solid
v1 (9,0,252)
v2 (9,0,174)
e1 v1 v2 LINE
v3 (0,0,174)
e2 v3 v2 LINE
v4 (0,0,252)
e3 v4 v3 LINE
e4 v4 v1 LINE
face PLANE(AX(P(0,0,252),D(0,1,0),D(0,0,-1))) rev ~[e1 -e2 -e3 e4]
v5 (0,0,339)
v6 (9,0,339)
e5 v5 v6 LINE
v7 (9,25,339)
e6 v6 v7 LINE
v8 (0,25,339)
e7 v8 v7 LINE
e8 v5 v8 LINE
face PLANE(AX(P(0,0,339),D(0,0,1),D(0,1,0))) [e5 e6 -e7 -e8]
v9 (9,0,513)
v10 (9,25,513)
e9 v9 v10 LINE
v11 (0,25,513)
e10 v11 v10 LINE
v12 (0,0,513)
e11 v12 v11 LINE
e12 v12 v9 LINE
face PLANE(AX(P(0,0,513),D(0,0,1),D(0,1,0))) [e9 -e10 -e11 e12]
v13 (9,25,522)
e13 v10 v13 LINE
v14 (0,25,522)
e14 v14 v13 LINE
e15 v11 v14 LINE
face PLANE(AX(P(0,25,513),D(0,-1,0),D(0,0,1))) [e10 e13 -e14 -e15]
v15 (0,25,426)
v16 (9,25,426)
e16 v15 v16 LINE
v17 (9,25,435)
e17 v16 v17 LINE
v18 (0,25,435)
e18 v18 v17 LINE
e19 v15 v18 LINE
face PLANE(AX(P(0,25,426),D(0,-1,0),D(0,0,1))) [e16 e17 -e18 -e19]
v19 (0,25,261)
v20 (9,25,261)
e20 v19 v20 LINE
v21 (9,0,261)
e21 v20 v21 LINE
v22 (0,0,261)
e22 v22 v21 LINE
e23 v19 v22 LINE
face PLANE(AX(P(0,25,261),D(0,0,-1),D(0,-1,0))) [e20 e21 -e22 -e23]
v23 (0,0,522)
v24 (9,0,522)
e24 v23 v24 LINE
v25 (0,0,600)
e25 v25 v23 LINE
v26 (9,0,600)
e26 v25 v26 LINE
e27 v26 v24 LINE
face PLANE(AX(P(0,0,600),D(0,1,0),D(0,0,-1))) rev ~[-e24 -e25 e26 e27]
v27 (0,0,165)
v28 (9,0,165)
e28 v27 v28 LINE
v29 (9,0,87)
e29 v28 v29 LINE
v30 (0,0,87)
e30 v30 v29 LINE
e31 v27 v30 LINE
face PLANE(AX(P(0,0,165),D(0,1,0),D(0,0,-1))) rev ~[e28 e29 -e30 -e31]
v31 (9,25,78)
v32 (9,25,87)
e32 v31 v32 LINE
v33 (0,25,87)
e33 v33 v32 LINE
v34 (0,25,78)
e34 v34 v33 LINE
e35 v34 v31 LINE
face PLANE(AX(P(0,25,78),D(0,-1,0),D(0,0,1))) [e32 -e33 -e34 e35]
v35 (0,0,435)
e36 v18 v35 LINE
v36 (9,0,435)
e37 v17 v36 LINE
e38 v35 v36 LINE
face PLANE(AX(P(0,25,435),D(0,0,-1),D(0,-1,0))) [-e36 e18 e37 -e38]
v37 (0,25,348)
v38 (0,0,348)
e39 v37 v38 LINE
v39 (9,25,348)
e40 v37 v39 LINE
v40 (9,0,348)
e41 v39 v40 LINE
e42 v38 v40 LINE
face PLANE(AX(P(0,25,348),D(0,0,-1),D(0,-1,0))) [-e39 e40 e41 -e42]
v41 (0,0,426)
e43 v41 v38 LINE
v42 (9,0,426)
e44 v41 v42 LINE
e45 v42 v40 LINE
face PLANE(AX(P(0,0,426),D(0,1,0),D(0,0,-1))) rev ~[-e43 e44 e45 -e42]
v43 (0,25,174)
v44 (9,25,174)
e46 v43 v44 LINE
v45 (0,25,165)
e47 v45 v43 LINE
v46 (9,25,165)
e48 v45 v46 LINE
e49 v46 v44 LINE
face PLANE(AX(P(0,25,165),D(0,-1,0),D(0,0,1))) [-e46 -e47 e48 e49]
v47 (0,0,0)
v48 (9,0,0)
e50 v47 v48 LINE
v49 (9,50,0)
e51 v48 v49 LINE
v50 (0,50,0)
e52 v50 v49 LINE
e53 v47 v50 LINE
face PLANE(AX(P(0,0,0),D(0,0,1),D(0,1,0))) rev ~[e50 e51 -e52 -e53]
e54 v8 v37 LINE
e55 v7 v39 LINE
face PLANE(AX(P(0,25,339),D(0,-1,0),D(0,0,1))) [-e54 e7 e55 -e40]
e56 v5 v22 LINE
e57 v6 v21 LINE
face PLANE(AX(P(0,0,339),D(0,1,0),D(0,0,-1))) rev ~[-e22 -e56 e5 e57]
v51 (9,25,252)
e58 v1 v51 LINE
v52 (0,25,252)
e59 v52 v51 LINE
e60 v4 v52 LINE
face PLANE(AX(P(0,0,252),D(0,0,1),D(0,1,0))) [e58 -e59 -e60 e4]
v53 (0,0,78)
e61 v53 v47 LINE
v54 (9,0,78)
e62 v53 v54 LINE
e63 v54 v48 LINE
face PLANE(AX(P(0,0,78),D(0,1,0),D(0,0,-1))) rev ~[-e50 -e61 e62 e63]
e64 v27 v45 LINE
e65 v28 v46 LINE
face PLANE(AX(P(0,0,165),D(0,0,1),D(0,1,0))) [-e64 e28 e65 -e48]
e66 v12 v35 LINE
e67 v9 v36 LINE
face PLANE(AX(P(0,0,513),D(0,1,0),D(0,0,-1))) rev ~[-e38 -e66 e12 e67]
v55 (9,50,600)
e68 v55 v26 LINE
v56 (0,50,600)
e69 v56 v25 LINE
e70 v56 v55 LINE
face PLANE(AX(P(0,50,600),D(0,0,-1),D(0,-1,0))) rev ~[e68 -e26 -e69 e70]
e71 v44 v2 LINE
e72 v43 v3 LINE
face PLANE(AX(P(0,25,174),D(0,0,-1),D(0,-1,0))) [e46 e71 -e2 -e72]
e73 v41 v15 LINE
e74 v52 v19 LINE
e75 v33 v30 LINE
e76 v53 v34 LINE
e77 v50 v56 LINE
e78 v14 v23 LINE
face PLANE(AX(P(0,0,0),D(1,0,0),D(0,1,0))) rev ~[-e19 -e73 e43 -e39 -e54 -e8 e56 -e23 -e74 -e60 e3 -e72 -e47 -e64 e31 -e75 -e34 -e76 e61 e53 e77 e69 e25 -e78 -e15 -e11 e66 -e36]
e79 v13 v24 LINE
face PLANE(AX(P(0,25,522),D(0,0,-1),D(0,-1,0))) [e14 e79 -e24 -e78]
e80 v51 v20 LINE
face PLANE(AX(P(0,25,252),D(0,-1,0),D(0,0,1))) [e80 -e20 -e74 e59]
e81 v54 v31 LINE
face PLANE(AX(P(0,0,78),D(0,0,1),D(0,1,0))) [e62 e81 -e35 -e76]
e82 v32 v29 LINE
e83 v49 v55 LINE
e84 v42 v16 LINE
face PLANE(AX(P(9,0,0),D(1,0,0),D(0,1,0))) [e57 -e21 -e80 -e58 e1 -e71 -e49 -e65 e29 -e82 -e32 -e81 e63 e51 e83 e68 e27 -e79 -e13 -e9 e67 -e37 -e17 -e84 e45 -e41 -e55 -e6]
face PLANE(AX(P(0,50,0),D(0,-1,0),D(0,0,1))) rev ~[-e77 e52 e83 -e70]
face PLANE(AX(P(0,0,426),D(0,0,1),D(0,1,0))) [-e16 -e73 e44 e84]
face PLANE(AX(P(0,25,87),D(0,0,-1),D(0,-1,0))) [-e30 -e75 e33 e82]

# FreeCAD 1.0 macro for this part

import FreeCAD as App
import Part
import Sketcher
from FreeCAD import Vector
Q = App.Units.Quantity


def add_polygon(sketch, points):
    """Adds a closed chain of lines whose ends are joined by coincident constraints."""
    first, n = sketch.GeometryCount, len(points)
    for a, b in zip(points, points[1:] + points[:1]):
        sketch.addGeometry(Part.LineSegment(App.Vector(*a, 0), App.Vector(*b, 0)), False)
    for i in range(n):
        sketch.addConstraint(Sketcher.Constraint("Coincident", first + i, 2, first + (i + 1) % n, 1))

doc = App.newDocument("Part")
body = doc.addObject("PartDesign::Body", "Body")

sketch1 = doc.addObject("Sketcher::SketchObject", "Sketch")
body.addObject(sketch1)
sketch1.AttachmentSupport = (doc.YZ_Plane, [""])
sketch1.MapMode = "FlatFace"
add_polygon(sketch1, [(0, 78), (0, 0), (50, 0), (50, 600), (0, 600), (0, 522), (25, 522), (25, 513), (0, 513), (0, 435), (25, 435), (25, 426), (0, 426), (0, 348), (25, 348), (25, 339), (0, 339), (0, 261), (25, 261), (25, 252), (0, 252), (0, 174), (25, 174), (25, 165), (0, 165), (0, 87), (25, 87), (25, 78)])
sketch1.addConstraint([
    Sketcher.Constraint("Vertical", 0),
    Sketcher.Constraint("Horizontal", 1),
    Sketcher.Constraint("Vertical", 2),
    Sketcher.Constraint("Horizontal", 3),
    Sketcher.Constraint("Vertical", 4),
    Sketcher.Constraint("Horizontal", 5),
    Sketcher.Constraint("Vertical", 6),
    Sketcher.Constraint("Horizontal", 7),
    Sketcher.Constraint("Vertical", 8),
    Sketcher.Constraint("Horizontal", 9),
    Sketcher.Constraint("Vertical", 10),
    Sketcher.Constraint("Horizontal", 11),
    Sketcher.Constraint("Vertical", 12),
    Sketcher.Constraint("Horizontal", 13),
    Sketcher.Constraint("Vertical", 14),
    Sketcher.Constraint("Horizontal", 15),
    Sketcher.Constraint("Vertical", 16),
    Sketcher.Constraint("Horizontal", 17),
    Sketcher.Constraint("Vertical", 18),
    Sketcher.Constraint("Horizontal", 19),
    Sketcher.Constraint("Vertical", 20),
    Sketcher.Constraint("Horizontal", 21),
    Sketcher.Constraint("Vertical", 22),
    Sketcher.Constraint("Horizontal", 23),
    Sketcher.Constraint("Vertical", 24),
    Sketcher.Constraint("Horizontal", 25),
    Sketcher.Constraint("Vertical", 26),
    Sketcher.Constraint("Horizontal", 27),
    Sketcher.Constraint("Coincident", 0, 2, -1, 1),
    Sketcher.Constraint("PointOnObject", 3, 2, -2),
    Sketcher.Constraint("PointOnObject", 7, 2, -2),
    Sketcher.Constraint("PointOnObject", 11, 2, -2),
    Sketcher.Constraint("PointOnObject", 15, 2, -2),
    Sketcher.Constraint("PointOnObject", 19, 2, -2),
    Sketcher.Constraint("PointOnObject", 23, 2, -2),
    Sketcher.Constraint("Vertical", 6, 2, 9, 2),
    Sketcher.Constraint("Vertical", 10, 2, 13, 2),
    Sketcher.Constraint("Vertical", 14, 2, 17, 2),
    Sketcher.Constraint("Vertical", 18, 2, 21, 2),
    Sketcher.Constraint("Vertical", 22, 2, 25, 2),
    Sketcher.Constraint("Equal", 0, 4),
    Sketcher.Constraint("Equal", 4, 8),
    Sketcher.Constraint("Equal", 6, 10),
    Sketcher.Constraint("Equal", 8, 12),
    Sketcher.Constraint("Equal", 10, 14),
    Sketcher.Constraint("Equal", 12, 16),
    Sketcher.Constraint("Equal", 14, 18),
    Sketcher.Constraint("Equal", 16, 20),
    Sketcher.Constraint("Equal", 18, 22),
    Sketcher.Constraint("Equal", 20, 24),
    Sketcher.Constraint("Equal", 22, 26),
    Sketcher.Constraint("DistanceX", 1, 1, 1, 2, Q("50 mm")),
    Sketcher.Constraint("DistanceX", 5, 1, 5, 2, Q("25 mm")),
    Sketcher.Constraint("DistanceY", 0, 2, 0, 1, Q("78 mm")),
    Sketcher.Constraint("DistanceY", 2, 1, 2, 2, Q("600 mm")),
])
pad1 = doc.addObject("PartDesign::Pad", "Pad")
body.addObject(pad1)
pad1.Profile = sketch1
pad1.Length = 9

doc.recompute()
